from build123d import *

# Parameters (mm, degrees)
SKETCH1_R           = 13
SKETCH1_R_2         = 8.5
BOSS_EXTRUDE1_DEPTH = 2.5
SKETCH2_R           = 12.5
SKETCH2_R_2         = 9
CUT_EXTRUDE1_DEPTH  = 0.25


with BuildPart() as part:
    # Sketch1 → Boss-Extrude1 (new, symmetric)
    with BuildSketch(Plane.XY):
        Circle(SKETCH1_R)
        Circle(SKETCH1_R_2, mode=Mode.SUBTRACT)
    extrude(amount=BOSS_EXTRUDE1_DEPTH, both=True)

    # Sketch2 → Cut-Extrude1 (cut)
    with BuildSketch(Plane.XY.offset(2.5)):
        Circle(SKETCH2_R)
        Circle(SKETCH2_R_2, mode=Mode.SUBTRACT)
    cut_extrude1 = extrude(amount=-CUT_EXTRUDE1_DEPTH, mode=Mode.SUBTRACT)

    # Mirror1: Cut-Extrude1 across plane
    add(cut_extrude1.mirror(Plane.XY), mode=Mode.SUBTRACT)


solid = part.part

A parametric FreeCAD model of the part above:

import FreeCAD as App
import Part
import Sketcher
Q = App.Units.Quantity

doc = App.newDocument("Part")
body = doc.addObject("PartDesign::Body", "Body")

# Sketch on XY plane
sketch1 = body.newObject("Sketcher::SketchObject", "Sketch")
sketch1.AttachmentSupport = (doc.getObject("XY_Plane"), [""])
sketch1.MapMode = "FlatFace"
sketch1.addGeometry([
    Part.Circle(App.Vector(0, 0, 0), App.Vector(0, 0, 1), 13),
    Part.Circle(App.Vector(0, 0, 0), App.Vector(0, 0, 1), 8),
], False)
sketch1.addConstraint([
    Sketcher.Constraint("Coincident", 0, 3, -1, 1),
    Sketcher.Constraint("Coincident", 1, 3, -1, 1),
    Sketcher.Constraint("Diameter", 0, Q("26 mm")),
    Sketcher.Constraint("Diameter", 1, Q("17 mm")),
])
pad1 = body.newObject("PartDesign::Pad", "Pad")
pad1.Profile = sketch1
pad1.Length = 5
pad1.Midplane = True

# Sketch on XY plane
sketch2 = body.newObject("Sketcher::SketchObject", "Sketch001")
sketch2.AttachmentSupport = (doc.getObject("XY_Plane"), [""])
sketch2.MapMode = "FlatFace"
sketch2.AttachmentOffset = App.Placement(App.Vector(0, 0, 2.5), App.Rotation())
sketch2.addGeometry([
    Part.Circle(App.Vector(0, 0, 0), App.Vector(0, 0, 1), 12),
    Part.Circle(App.Vector(0, 0, 0), App.Vector(0, 0, 1), 9),
], False)
sketch2.addConstraint([
    Sketcher.Constraint("Coincident", 0, 3, -1, 1),
    Sketcher.Constraint("Coincident", 1, 3, -1, 1),
    Sketcher.Constraint("Diameter", 0, Q("25 mm")),
    Sketcher.Constraint("Diameter", 1, Q("18 mm")),
])
pocket1 = body.newObject("PartDesign::Pocket", "Pocket")
pocket1.Profile = sketch2
pocket1.Length = 0.25
doc.recompute()

mirrored = body.newObject("PartDesign::Mirrored", "Mirrored")
mirrored.Originals = [pocket1]
mirrored.MirrorPlane = (doc.getObject("XY_Plane"), [""])
body.Tip = mirrored

doc.recompute()
